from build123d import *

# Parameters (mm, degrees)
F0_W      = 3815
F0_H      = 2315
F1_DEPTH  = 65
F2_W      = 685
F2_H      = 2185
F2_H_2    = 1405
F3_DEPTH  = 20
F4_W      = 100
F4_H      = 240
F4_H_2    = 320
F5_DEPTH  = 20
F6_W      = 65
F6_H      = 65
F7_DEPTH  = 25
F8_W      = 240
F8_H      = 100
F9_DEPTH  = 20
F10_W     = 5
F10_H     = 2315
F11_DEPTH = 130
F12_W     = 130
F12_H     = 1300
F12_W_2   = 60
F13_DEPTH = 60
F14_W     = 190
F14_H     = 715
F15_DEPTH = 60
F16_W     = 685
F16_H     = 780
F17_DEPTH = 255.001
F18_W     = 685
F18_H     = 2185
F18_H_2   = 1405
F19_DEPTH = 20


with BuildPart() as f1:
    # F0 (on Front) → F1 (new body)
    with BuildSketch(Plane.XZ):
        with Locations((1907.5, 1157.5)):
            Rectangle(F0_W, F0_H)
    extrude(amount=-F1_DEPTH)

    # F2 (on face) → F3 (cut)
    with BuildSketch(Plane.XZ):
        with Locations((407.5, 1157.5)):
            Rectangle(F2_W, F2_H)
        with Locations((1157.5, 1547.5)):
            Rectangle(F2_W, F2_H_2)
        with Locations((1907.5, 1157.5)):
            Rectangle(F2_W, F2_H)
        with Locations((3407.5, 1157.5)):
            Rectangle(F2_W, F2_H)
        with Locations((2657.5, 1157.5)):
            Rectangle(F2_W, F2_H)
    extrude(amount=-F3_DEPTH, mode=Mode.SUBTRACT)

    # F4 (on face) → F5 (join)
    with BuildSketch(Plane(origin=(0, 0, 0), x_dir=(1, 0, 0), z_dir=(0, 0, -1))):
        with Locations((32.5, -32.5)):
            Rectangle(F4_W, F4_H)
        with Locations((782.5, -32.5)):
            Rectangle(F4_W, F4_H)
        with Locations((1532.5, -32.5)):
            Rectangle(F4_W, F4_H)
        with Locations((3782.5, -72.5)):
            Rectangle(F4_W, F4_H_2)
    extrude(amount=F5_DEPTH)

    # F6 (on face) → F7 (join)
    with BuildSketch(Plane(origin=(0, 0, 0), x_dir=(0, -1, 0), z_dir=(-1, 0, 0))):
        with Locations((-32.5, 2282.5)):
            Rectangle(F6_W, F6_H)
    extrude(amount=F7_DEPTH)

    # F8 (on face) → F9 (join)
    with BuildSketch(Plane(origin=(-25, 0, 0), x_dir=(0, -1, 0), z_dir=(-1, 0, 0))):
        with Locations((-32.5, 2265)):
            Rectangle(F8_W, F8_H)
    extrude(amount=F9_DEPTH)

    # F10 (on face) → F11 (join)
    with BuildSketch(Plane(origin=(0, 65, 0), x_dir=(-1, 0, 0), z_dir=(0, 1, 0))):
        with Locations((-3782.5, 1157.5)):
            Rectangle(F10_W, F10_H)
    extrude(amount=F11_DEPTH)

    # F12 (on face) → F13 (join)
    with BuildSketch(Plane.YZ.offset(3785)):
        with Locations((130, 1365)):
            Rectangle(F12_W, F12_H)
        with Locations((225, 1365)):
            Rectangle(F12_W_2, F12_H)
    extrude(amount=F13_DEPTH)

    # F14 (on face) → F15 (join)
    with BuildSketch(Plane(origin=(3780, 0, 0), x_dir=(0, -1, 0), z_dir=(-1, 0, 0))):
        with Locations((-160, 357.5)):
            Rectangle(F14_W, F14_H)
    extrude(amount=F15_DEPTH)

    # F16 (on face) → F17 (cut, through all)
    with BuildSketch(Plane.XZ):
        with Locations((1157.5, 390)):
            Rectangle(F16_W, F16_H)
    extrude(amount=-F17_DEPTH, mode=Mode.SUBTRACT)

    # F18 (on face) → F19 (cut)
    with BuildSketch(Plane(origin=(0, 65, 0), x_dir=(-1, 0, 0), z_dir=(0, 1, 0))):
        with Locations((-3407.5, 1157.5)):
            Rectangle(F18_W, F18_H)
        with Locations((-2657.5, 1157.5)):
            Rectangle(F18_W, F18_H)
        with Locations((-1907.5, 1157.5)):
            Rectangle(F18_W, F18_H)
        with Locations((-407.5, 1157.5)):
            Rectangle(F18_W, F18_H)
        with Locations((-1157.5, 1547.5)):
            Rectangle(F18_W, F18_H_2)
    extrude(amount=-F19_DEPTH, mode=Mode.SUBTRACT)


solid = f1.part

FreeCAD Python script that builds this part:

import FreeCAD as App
import Part
import Sketcher


def add_polygon(sketch, points):
    """Adds a closed chain of lines whose ends are joined by coincident constraints."""
    first, n = sketch.GeometryCount, len(points)
    for a, b in zip(points, points[1:] + points[:1]):
        sketch.addGeometry(Part.LineSegment(App.Vector(*a, 0), App.Vector(*b, 0)), False)
    for i in range(n):
        sketch.addConstraint(Sketcher.Constraint("Coincident", first + i, 2, first + (i + 1) % n, 1))

doc = App.newDocument("Part")
params = doc.addObject("Spreadsheet::Sheet", "Params")
for row, (alias, value) in enumerate([
    ("sketch1_width", "3815 mm"),
    ("sketch1_height", "2315 mm"),
    ("pad1_length", "65 mm"),
    ("sketch2_width", "685 mm"),
    ("sketch2_height", "2185 mm"),
    ("sketch2_height2", "1405 mm"),
    ("pocket1_length", "20 mm"),
    ("sketch3_width", "100 mm"),
    ("sketch3_height", "240 mm"),
    ("sketch3_height2", "320 mm"),
    ("pad2_length", "20 mm"),
    ("sketch4_width", "65 mm"),
    ("pad3_length", "25 mm"),
    ("sketch5_width", "240 mm"),
    ("sketch5_height", "100 mm"),
    ("pad4_length", "20 mm"),
    ("sketch6_width", "5 mm"),
    ("sketch6_height", "2315 mm"),
    ("pad5_length", "130 mm"),
    ("sketch7_width", "190 mm"),
    ("sketch7_height", "1300 mm"),
    ("pad6_length", "60 mm"),
    ("sketch8_width", "190 mm"),
    ("sketch8_height", "715 mm"),
    ("pad7_length", "60 mm"),
    ("sketch9_width", "685 mm"),
    ("sketch9_height", "780 mm"),
    ("sketch10_width", "685 mm"),
    ("sketch10_height", "2185 mm"),
    ("sketch10_height2", "1405 mm"),
    ("pocket3_length", "20 mm"),
], start=1):
    params.set(f"A{row}", alias)
    params.set(f"B{row}", "=" + value)
    params.setAlias(f"B{row}", alias)

body = doc.addObject("PartDesign::Body", "Body")

# Sketch on XZ plane
sketch1 = doc.addObject("Sketcher::SketchObject", "Sketch")
body.addObject(sketch1)
sketch1.AttachmentSupport = (doc.XZ_Plane, [""])
sketch1.MapMode = "FlatFace"
add_polygon(sketch1, [(0, 2315), (0, 0), (3815, 0), (3815, 2315)])  # lines 0-3
sketch1.addConstraint(Sketcher.Constraint("Vertical", 0))
sketch1.addConstraint(Sketcher.Constraint("Horizontal", 1))
sketch1.addConstraint(Sketcher.Constraint("Vertical", 2))
sketch1.addConstraint(Sketcher.Constraint("Horizontal", 3))
sketch1.addConstraint(Sketcher.Constraint("Coincident", 0, 2, -1, 1))
sketch1.addConstraint(Sketcher.Constraint("DistanceX", 1, 1, 1, 2, 3815.0))
sketch1.addConstraint(Sketcher.Constraint("DistanceY", 0, 2, 0, 1, 2315.0))
sketch1.setExpression("Constraints[9]", "Params.sketch1_width")
sketch1.setExpression("Constraints[10]", "Params.sketch1_height")
pad1 = doc.addObject("PartDesign::Pad", "Pad")
body.addObject(pad1)
pad1.Profile = sketch1
pad1.setExpression("Length", "Params.pad1_length")
pad1.Reversed = True

# Sketch on XZ plane
sketch2 = doc.addObject("Sketcher::SketchObject", "Sketch001")
body.addObject(sketch2)
sketch2.AttachmentSupport = (doc.XZ_Plane, [""])
sketch2.MapMode = "FlatFace"
add_polygon(sketch2, [(65, 2250), (65, 65), (750, 65), (750, 2250)])  # lines 0-3
add_polygon(sketch2, [(815, 2250), (815, 845), (1500, 845), (1500, 2250)])  # lines 4-7
add_polygon(sketch2, [(1565, 2250), (1565, 65), (2250, 65), (2250, 2250)])  # lines 8-11
add_polygon(sketch2, [(3065, 2250), (3065, 65), (3750, 65), (3750, 2250)])  # lines 12-15
add_polygon(sketch2, [(2315, 2250), (2315, 65), (3000, 65), (3000, 2250)])  # lines 16-19
sketch2.addConstraint(Sketcher.Constraint("Vertical", 0))
sketch2.addConstraint(Sketcher.Constraint("Horizontal", 1))
sketch2.addConstraint(Sketcher.Constraint("Vertical", 2))
sketch2.addConstraint(Sketcher.Constraint("Horizontal", 3))
sketch2.addConstraint(Sketcher.Constraint("Vertical", 4))
sketch2.addConstraint(Sketcher.Constraint("Horizontal", 5))
sketch2.addConstraint(Sketcher.Constraint("Vertical", 6))
sketch2.addConstraint(Sketcher.Constraint("Horizontal", 7))
sketch2.addConstraint(Sketcher.Constraint("Vertical", 8))
sketch2.addConstraint(Sketcher.Constraint("Horizontal", 9))
sketch2.addConstraint(Sketcher.Constraint("Vertical", 10))
sketch2.addConstraint(Sketcher.Constraint("Horizontal", 11))
sketch2.addConstraint(Sketcher.Constraint("Vertical", 12))
sketch2.addConstraint(Sketcher.Constraint("Horizontal", 13))
sketch2.addConstraint(Sketcher.Constraint("Vertical", 14))
sketch2.addConstraint(Sketcher.Constraint("Horizontal", 15))
sketch2.addConstraint(Sketcher.Constraint("Vertical", 16))
sketch2.addConstraint(Sketcher.Constraint("Horizontal", 17))
sketch2.addConstraint(Sketcher.Constraint("Vertical", 18))
sketch2.addConstraint(Sketcher.Constraint("Horizontal", 19))
sketch2.addConstraint(Sketcher.Constraint("Horizontal", 3, 2, 6, 2))
sketch2.addConstraint(Sketcher.Constraint("Horizontal", 1, 2, 8, 2))
sketch2.addConstraint(Sketcher.Constraint("Horizontal", 7, 2, 10, 2))
sketch2.addConstraint(Sketcher.Constraint("Horizontal", 9, 2, 12, 2))
sketch2.addConstraint(Sketcher.Constraint("Horizontal", 11, 2, 14, 2))
sketch2.addConstraint(Sketcher.Constraint("Horizontal", 13, 2, 16, 2))
sketch2.addConstraint(Sketcher.Constraint("Horizontal", 15, 2, 18, 2))
sketch2.addConstraint(Sketcher.Constraint("Equal", 3, 5))
sketch2.addConstraint(Sketcher.Constraint("Equal", 7, 9))
sketch2.addConstraint(Sketcher.Constraint("Equal", 11, 13))
sketch2.addConstraint(Sketcher.Constraint("Equal", 15, 17))
sketch2.addConstraint(Sketcher.Constraint("DistanceX", 1, 1, 1, 2, 685.0))
sketch2.addConstraint(Sketcher.Constraint("DistanceY", 0, 2, 0, 1, 2185.0))
sketch2.addConstraint(Sketcher.Constraint("DistanceY", 4, 2, 4, 1, 1405.0))
sketch2.addConstraint(Sketcher.Constraint("DistanceX", -1, 1, 0, 2, 65.0))
sketch2.addConstraint(Sketcher.Constraint("DistanceY", -1, 1, 0, 2, 65.0))
sketch2.addConstraint(Sketcher.Constraint("DistanceX", -1, 1, 4, 2, 815.0))
sketch2.addConstraint(Sketcher.Constraint("DistanceX", -1, 1, 8, 2, 1565.0))
sketch2.addConstraint(Sketcher.Constraint("DistanceX", -1, 1, 12, 2, 3065.0))
sketch2.addConstraint(Sketcher.Constraint("DistanceX", -1, 1, 16, 2, 2315.0))
sketch2.setExpression("Constraints[51]", "Params.sketch2_width")
sketch2.setExpression("Constraints[52]", "Params.sketch2_height")
sketch2.setExpression("Constraints[53]", "Params.sketch2_height2")
pocket1 = doc.addObject("PartDesign::Pocket", "Pocket")
body.addObject(pocket1)
pocket1.Profile = sketch2
pocket1.setExpression("Length", "Params.pocket1_length")

# Sketch on XY plane
sketch3 = doc.addObject("Sketcher::SketchObject", "Sketch002")
body.addObject(sketch3)
sketch3.AttachmentSupport = (doc.XY_Plane, [""])
sketch3.MapMode = "FlatFace"
add_polygon(sketch3, [(-17.5, -87.5), (-17.5, 152.5), (82.5, 152.5), (82.5, -87.5)])  # lines 0-3
add_polygon(sketch3, [(732.5, -87.5), (732.5, 152.5), (832.5, 152.5), (832.5, -87.5)])  # lines 4-7
add_polygon(sketch3, [(1482.5, -87.5), (1482.5, 152.5), (1582.5, 152.5), (1582.5, -87.5)])  # lines 8-11
add_polygon(sketch3, [(3732.5, -87.5), (3732.5, 232.5), (3832.5, 232.5), (3832.5, -87.5)])  # lines 12-15
sketch3.addConstraint(Sketcher.Constraint("Vertical", 0))
sketch3.addConstraint(Sketcher.Constraint("Horizontal", 1))
sketch3.addConstraint(Sketcher.Constraint("Vertical", 2))
sketch3.addConstraint(Sketcher.Constraint("Horizontal", 3))
sketch3.addConstraint(Sketcher.Constraint("Vertical", 4))
sketch3.addConstraint(Sketcher.Constraint("Horizontal", 5))
sketch3.addConstraint(Sketcher.Constraint("Vertical", 6))
sketch3.addConstraint(Sketcher.Constraint("Horizontal", 7))
sketch3.addConstraint(Sketcher.Constraint("Vertical", 8))
sketch3.addConstraint(Sketcher.Constraint("Horizontal", 9))
sketch3.addConstraint(Sketcher.Constraint("Vertical", 10))
sketch3.addConstraint(Sketcher.Constraint("Horizontal", 11))
sketch3.addConstraint(Sketcher.Constraint("Vertical", 12))
sketch3.addConstraint(Sketcher.Constraint("Horizontal", 13))
sketch3.addConstraint(Sketcher.Constraint("Vertical", 14))
sketch3.addConstraint(Sketcher.Constraint("Horizontal", 15))
sketch3.addConstraint(Sketcher.Constraint("Horizontal", 1, 2, 4, 2))
sketch3.addConstraint(Sketcher.Constraint("Horizontal", 3, 2, 6, 2))
sketch3.addConstraint(Sketcher.Constraint("Horizontal", 5, 2, 8, 2))
sketch3.addConstraint(Sketcher.Constraint("Horizontal", 7, 2, 10, 2))
sketch3.addConstraint(Sketcher.Constraint("Horizontal", 11, 2, 14, 2))
sketch3.addConstraint(Sketcher.Constraint("Equal", 3, 5))
sketch3.addConstraint(Sketcher.Constraint("Equal", 7, 9))
sketch3.addConstraint(Sketcher.Constraint("Equal", 11, 13))
sketch3.addConstraint(Sketcher.Constraint("DistanceX", 1, 1, 1, 2, 100.0))
sketch3.addConstraint(Sketcher.Constraint("DistanceY", 0, 1, 0, 2, 240.0))
sketch3.addConstraint(Sketcher.Constraint("DistanceY", 12, 1, 12, 2, 320.0))
sketch3.addConstraint(Sketcher.Constraint("DistanceX", 1, 2, 4, 2, 650.0))
sketch3.addConstraint(Sketcher.Constraint("DistanceX", 5, 2, 8, 2, 650.0))
sketch3.addConstraint(Sketcher.Constraint("DistanceX", 9, 2, 12, 2, 2150.0))
sketch3.addConstraint(Sketcher.Constraint("DistanceX", 0, 2, -1, 1, 17.5))
sketch3.addConstraint(Sketcher.Constraint("DistanceY", -1, 1, 0, 2, 152.5))
sketch3.setExpression("Constraints[40]", "Params.sketch3_width")
sketch3.setExpression("Constraints[41]", "Params.sketch3_height")
sketch3.setExpression("Constraints[42]", "Params.sketch3_height2")
pad2 = doc.addObject("PartDesign::Pad", "Pad001")
body.addObject(pad2)
pad2.Profile = sketch3
pad2.setExpression("Length", "Params.pad2_length")
pad2.Reversed = True

# Sketch on YZ plane
sketch4 = doc.addObject("Sketcher::SketchObject", "Sketch003")
body.addObject(sketch4)
sketch4.AttachmentSupport = (doc.YZ_Plane, [""])
sketch4.MapMode = "FlatFace"
add_polygon(sketch4, [(65, 2315), (65, 2250), (0, 2250), (0, 2315)])  # lines 0-3
sketch4.addConstraint(Sketcher.Constraint("Vertical", 0))
sketch4.addConstraint(Sketcher.Constraint("Horizontal", 1))
sketch4.addConstraint(Sketcher.Constraint("Vertical", 2))
sketch4.addConstraint(Sketcher.Constraint("Horizontal", 3))
sketch4.addConstraint(Sketcher.Constraint("PointOnObject", 1, 2, -2))
sketch4.addConstraint(Sketcher.Constraint("Equal", 3, 0))
sketch4.addConstraint(Sketcher.Constraint("DistanceX", 1, 2, 1, 1, 65.0))
sketch4.addConstraint(Sketcher.Constraint("DistanceY", -1, 1, 0, 2, 2250.0))
sketch4.setExpression("Constraints[10]", "Params.sketch4_width")
pad3 = doc.addObject("PartDesign::Pad", "Pad002")
body.addObject(pad3)
pad3.Profile = sketch4
pad3.setExpression("Length", "Params.pad3_length")
pad3.Reversed = True

# Sketch on YZ plane
sketch5 = doc.addObject("Sketcher::SketchObject", "Sketch004")
body.addObject(sketch5)
sketch5.AttachmentSupport = (doc.YZ_Plane, [""])
sketch5.MapMode = "FlatFace"
sketch5.AttachmentOffset = App.Placement(App.Vector(0, 0, -25), App.Rotation())
add_polygon(sketch5, [(152.5, 2315), (152.5, 2215), (-87.5, 2215), (-87.5, 2315)])  # lines 0-3
sketch5.addConstraint(Sketcher.Constraint("Vertical", 0))
sketch5.addConstraint(Sketcher.Constraint("Horizontal", 1))
sketch5.addConstraint(Sketcher.Constraint("Vertical", 2))
sketch5.addConstraint(Sketcher.Constraint("Horizontal", 3))
sketch5.addConstraint(Sketcher.Constraint("DistanceX", 1, 2, 1, 1, 240.0))
sketch5.addConstraint(Sketcher.Constraint("DistanceY", 0, 2, 0, 1, 100.0))
sketch5.addConstraint(Sketcher.Constraint("DistanceY", -1, 1, 0, 2, 2215.0))
sketch5.addConstraint(Sketcher.Constraint("DistanceX", -1, 1, 0, 2, 152.5))
sketch5.setExpression("Constraints[8]", "Params.sketch5_width")
sketch5.setExpression("Constraints[9]", "Params.sketch5_height")
pad4 = doc.addObject("PartDesign::Pad", "Pad003")
body.addObject(pad4)
pad4.Profile = sketch5
pad4.setExpression("Length", "Params.pad4_length")
pad4.Reversed = True

# Sketch on XZ plane
sketch6 = doc.addObject("Sketcher::SketchObject", "Sketch005")
body.addObject(sketch6)
sketch6.AttachmentSupport = (doc.XZ_Plane, [""])
sketch6.MapMode = "FlatFace"
sketch6.AttachmentOffset = App.Placement(App.Vector(0, 0, -65), App.Rotation())
add_polygon(sketch6, [(3785, 2315), (3785, 0), (3780, 0), (3780, 2315)])  # lines 0-3
sketch6.addConstraint(Sketcher.Constraint("Vertical", 0))
sketch6.addConstraint(Sketcher.Constraint("Horizontal", 1))
sketch6.addConstraint(Sketcher.Constraint("Vertical", 2))
sketch6.addConstraint(Sketcher.Constraint("Horizontal", 3))
sketch6.addConstraint(Sketcher.Constraint("PointOnObject", 0, 2, -1))
sketch6.addConstraint(Sketcher.Constraint("DistanceX", 1, 2, 1, 1, 5.0))
sketch6.addConstraint(Sketcher.Constraint("DistanceY", 0, 2, 0, 1, 2315.0))
sketch6.addConstraint(Sketcher.Constraint("DistanceX", -1, 1, 0, 2, 3785.0))
sketch6.setExpression("Constraints[9]", "Params.sketch6_width")
sketch6.setExpression("Constraints[10]", "Params.sketch6_height")
pad5 = doc.addObject("PartDesign::Pad", "Pad004")
body.addObject(pad5)
pad5.Profile = sketch6
pad5.setExpression("Length", "Params.pad5_length")
pad5.Reversed = True

# Sketch on YZ plane
sketch7 = doc.addObject("Sketcher::SketchObject", "Sketch006")
body.addObject(sketch7)
sketch7.AttachmentSupport = (doc.YZ_Plane, [""])
sketch7.MapMode = "FlatFace"
sketch7.AttachmentOffset = App.Placement(App.Vector(0, 0, 3785), App.Rotation())
add_polygon(sketch7, [(65, 2015), (65, 715), (255, 715), (255, 2015)])  # lines 0-3
sketch7.addConstraint(Sketcher.Constraint("Vertical", 0))
sketch7.addConstraint(Sketcher.Constraint("Horizontal", 1))
sketch7.addConstraint(Sketcher.Constraint("Vertical", 2))
sketch7.addConstraint(Sketcher.Constraint("Horizontal", 3))
sketch7.addConstraint(Sketcher.Constraint("DistanceX", 1, 1, 1, 2, 190.0))
sketch7.addConstraint(Sketcher.Constraint("DistanceY", 0, 2, 0, 1, 1300.0))
sketch7.addConstraint(Sketcher.Constraint("DistanceX", -1, 1, 0, 2, 65.0))
sketch7.addConstraint(Sketcher.Constraint("DistanceY", -1, 1, 0, 2, 715.0))
sketch7.setExpression("Constraints[8]", "Params.sketch7_width")
sketch7.setExpression("Constraints[9]", "Params.sketch7_height")
pad6 = doc.addObject("PartDesign::Pad", "Pad005")
body.addObject(pad6)
pad6.Profile = sketch7
pad6.setExpression("Length", "Params.pad6_length")

# Sketch on YZ plane
sketch8 = doc.addObject("Sketcher::SketchObject", "Sketch007")
body.addObject(sketch8)
sketch8.AttachmentSupport = (doc.YZ_Plane, [""])
sketch8.MapMode = "FlatFace"
sketch8.AttachmentOffset = App.Placement(App.Vector(0, 0, 3780), App.Rotation())
add_polygon(sketch8, [(255, 715), (255, 0), (65, 0), (65, 715)])  # lines 0-3
sketch8.addConstraint(Sketcher.Constraint("Vertical", 0))
sketch8.addConstraint(Sketcher.Constraint("Horizontal", 1))
sketch8.addConstraint(Sketcher.Constraint("Vertical", 2))
sketch8.addConstraint(Sketcher.Constraint("Horizontal", 3))
sketch8.addConstraint(Sketcher.Constraint("PointOnObject", 0, 2, -1))
sketch8.addConstraint(Sketcher.Constraint("DistanceX", 1, 2, 1, 1, 190.0))
sketch8.addConstraint(Sketcher.Constraint("DistanceY", 0, 2, 0, 1, 715.0))
sketch8.addConstraint(Sketcher.Constraint("DistanceX", -1, 1, 0, 2, 255.0))
sketch8.setExpression("Constraints[9]", "Params.sketch8_width")
sketch8.setExpression("Constraints[10]", "Params.sketch8_height")
pad7 = doc.addObject("PartDesign::Pad", "Pad006")
body.addObject(pad7)
pad7.Profile = sketch8
pad7.setExpression("Length", "Params.pad7_length")
pad7.Reversed = True

# Sketch on XZ plane
sketch9 = doc.addObject("Sketcher::SketchObject", "Sketch008")
body.addObject(sketch9)
sketch9.AttachmentSupport = (doc.XZ_Plane, [""])
sketch9.MapMode = "FlatFace"
add_polygon(sketch9, [(815, 780), (815, 0), (1500, 0), (1500, 780)])  # lines 0-3
sketch9.addConstraint(Sketcher.Constraint("Vertical", 0))
sketch9.addConstraint(Sketcher.Constraint("Horizontal", 1))
sketch9.addConstraint(Sketcher.Constraint("Vertical", 2))
sketch9.addConstraint(Sketcher.Constraint("Horizontal", 3))
sketch9.addConstraint(Sketcher.Constraint("PointOnObject", 0, 2, -1))
sketch9.addConstraint(Sketcher.Constraint("DistanceX", 1, 1, 1, 2, 685.0))
sketch9.addConstraint(Sketcher.Constraint("DistanceY", 0, 2, 0, 1, 780.0))
sketch9.addConstraint(Sketcher.Constraint("DistanceX", -1, 1, 0, 2, 815.0))
sketch9.setExpression("Constraints[9]", "Params.sketch9_width")
sketch9.setExpression("Constraints[10]", "Params.sketch9_height")
pocket2 = doc.addObject("PartDesign::Pocket", "Pocket001")
body.addObject(pocket2)
pocket2.Profile = sketch9
pocket2.Type = "ThroughAll"

# Sketch on XZ plane
sketch10 = doc.addObject("Sketcher::SketchObject", "Sketch009")
body.addObject(sketch10)
sketch10.AttachmentSupport = (doc.XZ_Plane, [""])
sketch10.MapMode = "FlatFace"
sketch10.AttachmentOffset = App.Placement(App.Vector(0, 0, -65), App.Rotation())
add_polygon(sketch10, [(3750, 2250), (3750, 65), (3065, 65), (3065, 2250)])  # lines 0-3
add_polygon(sketch10, [(3000, 2250), (3000, 65), (2315, 65), (2315, 2250)])  # lines 4-7
add_polygon(sketch10, [(2250, 2250), (2250, 65), (1565, 65), (1565, 2250)])  # lines 8-11
add_polygon(sketch10, [(750, 2250), (750, 65), (65, 65), (65, 2250)])  # lines 12-15
add_polygon(sketch10, [(1500, 2250), (1500, 845), (815, 845), (815, 2250)])  # lines 16-19
sketch10.addConstraint(Sketcher.Constraint("Vertical", 0))
sketch10.addConstraint(Sketcher.Constraint("Horizontal", 1))
sketch10.addConstraint(Sketcher.Constraint("Vertical", 2))
sketch10.addConstraint(Sketcher.Constraint("Horizontal", 3))
sketch10.addConstraint(Sketcher.Constraint("Vertical", 4))
sketch10.addConstraint(Sketcher.Constraint("Horizontal", 5))
sketch10.addConstraint(Sketcher.Constraint("Vertical", 6))
sketch10.addConstraint(Sketcher.Constraint("Horizontal", 7))
sketch10.addConstraint(Sketcher.Constraint("Vertical", 8))
sketch10.addConstraint(Sketcher.Constraint("Horizontal", 9))
sketch10.addConstraint(Sketcher.Constraint("Vertical", 10))
sketch10.addConstraint(Sketcher.Constraint("Horizontal", 11))
sketch10.addConstraint(Sketcher.Constraint("Vertical", 12))
sketch10.addConstraint(Sketcher.Constraint("Horizontal", 13))
sketch10.addConstraint(Sketcher.Constraint("Vertical", 14))
sketch10.addConstraint(Sketcher.Constraint("Horizontal", 15))
sketch10.addConstraint(Sketcher.Constraint("Vertical", 16))
sketch10.addConstraint(Sketcher.Constraint("Horizontal", 17))
sketch10.addConstraint(Sketcher.Constraint("Vertical", 18))
sketch10.addConstraint(Sketcher.Constraint("Horizontal", 19))
sketch10.addConstraint(Sketcher.Constraint("Horizontal", 1, 2, 4, 2))
sketch10.addConstraint(Sketcher.Constraint("Horizontal", 3, 2, 6, 2))
sketch10.addConstraint(Sketcher.Constraint("Horizontal", 5, 2, 8, 2))
sketch10.addConstraint(Sketcher.Constraint("Horizontal", 7, 2, 10, 2))
sketch10.addConstraint(Sketcher.Constraint("Horizontal", 9, 2, 12, 2))
sketch10.addConstraint(Sketcher.Constraint("Horizontal", 11, 2, 14, 2))
sketch10.addConstraint(Sketcher.Constraint("Horizontal", 15, 2, 18, 2))
sketch10.addConstraint(Sketcher.Constraint("Equal", 3, 5))
sketch10.addConstraint(Sketcher.Constraint("Equal", 7, 9))
sketch10.addConstraint(Sketcher.Constraint("Equal", 11, 13))
sketch10.addConstraint(Sketcher.Constraint("Equal", 15, 17))
sketch10.addConstraint(Sketcher.Constraint("DistanceX", 1, 2, 1, 1, 685.0))
sketch10.addConstraint(Sketcher.Constraint("DistanceY", 0, 2, 0, 1, 2185.0))
sketch10.addConstraint(Sketcher.Constraint("DistanceY", 16, 2, 16, 1, 1405.0))
sketch10.addConstraint(Sketcher.Constraint("DistanceX", -1, 1, 0, 2, 3750.0))
sketch10.addConstraint(Sketcher.Constraint("DistanceY", -1, 1, 0, 2, 65.0))
sketch10.addConstraint(Sketcher.Constraint("DistanceX", -1, 1, 4, 2, 3000.0))
sketch10.addConstraint(Sketcher.Constraint("DistanceX", -1, 1, 8, 2, 2250.0))
sketch10.addConstraint(Sketcher.Constraint("DistanceX", -1, 1, 12, 2, 750.0))
sketch10.addConstraint(Sketcher.Constraint("DistanceX", -1, 1, 16, 2, 1500.0))
sketch10.setExpression("Constraints[51]", "Params.sketch10_width")
sketch10.setExpression("Constraints[52]", "Params.sketch10_height")
sketch10.setExpression("Constraints[53]", "Params.sketch10_height2")
pocket3 = doc.addObject("PartDesign::Pocket", "Pocket002")
body.addObject(pocket3)
pocket3.Profile = sketch10
pocket3.setExpression("Length", "Params.pocket3_length")
pocket3.Reversed = True

doc.recompute()
